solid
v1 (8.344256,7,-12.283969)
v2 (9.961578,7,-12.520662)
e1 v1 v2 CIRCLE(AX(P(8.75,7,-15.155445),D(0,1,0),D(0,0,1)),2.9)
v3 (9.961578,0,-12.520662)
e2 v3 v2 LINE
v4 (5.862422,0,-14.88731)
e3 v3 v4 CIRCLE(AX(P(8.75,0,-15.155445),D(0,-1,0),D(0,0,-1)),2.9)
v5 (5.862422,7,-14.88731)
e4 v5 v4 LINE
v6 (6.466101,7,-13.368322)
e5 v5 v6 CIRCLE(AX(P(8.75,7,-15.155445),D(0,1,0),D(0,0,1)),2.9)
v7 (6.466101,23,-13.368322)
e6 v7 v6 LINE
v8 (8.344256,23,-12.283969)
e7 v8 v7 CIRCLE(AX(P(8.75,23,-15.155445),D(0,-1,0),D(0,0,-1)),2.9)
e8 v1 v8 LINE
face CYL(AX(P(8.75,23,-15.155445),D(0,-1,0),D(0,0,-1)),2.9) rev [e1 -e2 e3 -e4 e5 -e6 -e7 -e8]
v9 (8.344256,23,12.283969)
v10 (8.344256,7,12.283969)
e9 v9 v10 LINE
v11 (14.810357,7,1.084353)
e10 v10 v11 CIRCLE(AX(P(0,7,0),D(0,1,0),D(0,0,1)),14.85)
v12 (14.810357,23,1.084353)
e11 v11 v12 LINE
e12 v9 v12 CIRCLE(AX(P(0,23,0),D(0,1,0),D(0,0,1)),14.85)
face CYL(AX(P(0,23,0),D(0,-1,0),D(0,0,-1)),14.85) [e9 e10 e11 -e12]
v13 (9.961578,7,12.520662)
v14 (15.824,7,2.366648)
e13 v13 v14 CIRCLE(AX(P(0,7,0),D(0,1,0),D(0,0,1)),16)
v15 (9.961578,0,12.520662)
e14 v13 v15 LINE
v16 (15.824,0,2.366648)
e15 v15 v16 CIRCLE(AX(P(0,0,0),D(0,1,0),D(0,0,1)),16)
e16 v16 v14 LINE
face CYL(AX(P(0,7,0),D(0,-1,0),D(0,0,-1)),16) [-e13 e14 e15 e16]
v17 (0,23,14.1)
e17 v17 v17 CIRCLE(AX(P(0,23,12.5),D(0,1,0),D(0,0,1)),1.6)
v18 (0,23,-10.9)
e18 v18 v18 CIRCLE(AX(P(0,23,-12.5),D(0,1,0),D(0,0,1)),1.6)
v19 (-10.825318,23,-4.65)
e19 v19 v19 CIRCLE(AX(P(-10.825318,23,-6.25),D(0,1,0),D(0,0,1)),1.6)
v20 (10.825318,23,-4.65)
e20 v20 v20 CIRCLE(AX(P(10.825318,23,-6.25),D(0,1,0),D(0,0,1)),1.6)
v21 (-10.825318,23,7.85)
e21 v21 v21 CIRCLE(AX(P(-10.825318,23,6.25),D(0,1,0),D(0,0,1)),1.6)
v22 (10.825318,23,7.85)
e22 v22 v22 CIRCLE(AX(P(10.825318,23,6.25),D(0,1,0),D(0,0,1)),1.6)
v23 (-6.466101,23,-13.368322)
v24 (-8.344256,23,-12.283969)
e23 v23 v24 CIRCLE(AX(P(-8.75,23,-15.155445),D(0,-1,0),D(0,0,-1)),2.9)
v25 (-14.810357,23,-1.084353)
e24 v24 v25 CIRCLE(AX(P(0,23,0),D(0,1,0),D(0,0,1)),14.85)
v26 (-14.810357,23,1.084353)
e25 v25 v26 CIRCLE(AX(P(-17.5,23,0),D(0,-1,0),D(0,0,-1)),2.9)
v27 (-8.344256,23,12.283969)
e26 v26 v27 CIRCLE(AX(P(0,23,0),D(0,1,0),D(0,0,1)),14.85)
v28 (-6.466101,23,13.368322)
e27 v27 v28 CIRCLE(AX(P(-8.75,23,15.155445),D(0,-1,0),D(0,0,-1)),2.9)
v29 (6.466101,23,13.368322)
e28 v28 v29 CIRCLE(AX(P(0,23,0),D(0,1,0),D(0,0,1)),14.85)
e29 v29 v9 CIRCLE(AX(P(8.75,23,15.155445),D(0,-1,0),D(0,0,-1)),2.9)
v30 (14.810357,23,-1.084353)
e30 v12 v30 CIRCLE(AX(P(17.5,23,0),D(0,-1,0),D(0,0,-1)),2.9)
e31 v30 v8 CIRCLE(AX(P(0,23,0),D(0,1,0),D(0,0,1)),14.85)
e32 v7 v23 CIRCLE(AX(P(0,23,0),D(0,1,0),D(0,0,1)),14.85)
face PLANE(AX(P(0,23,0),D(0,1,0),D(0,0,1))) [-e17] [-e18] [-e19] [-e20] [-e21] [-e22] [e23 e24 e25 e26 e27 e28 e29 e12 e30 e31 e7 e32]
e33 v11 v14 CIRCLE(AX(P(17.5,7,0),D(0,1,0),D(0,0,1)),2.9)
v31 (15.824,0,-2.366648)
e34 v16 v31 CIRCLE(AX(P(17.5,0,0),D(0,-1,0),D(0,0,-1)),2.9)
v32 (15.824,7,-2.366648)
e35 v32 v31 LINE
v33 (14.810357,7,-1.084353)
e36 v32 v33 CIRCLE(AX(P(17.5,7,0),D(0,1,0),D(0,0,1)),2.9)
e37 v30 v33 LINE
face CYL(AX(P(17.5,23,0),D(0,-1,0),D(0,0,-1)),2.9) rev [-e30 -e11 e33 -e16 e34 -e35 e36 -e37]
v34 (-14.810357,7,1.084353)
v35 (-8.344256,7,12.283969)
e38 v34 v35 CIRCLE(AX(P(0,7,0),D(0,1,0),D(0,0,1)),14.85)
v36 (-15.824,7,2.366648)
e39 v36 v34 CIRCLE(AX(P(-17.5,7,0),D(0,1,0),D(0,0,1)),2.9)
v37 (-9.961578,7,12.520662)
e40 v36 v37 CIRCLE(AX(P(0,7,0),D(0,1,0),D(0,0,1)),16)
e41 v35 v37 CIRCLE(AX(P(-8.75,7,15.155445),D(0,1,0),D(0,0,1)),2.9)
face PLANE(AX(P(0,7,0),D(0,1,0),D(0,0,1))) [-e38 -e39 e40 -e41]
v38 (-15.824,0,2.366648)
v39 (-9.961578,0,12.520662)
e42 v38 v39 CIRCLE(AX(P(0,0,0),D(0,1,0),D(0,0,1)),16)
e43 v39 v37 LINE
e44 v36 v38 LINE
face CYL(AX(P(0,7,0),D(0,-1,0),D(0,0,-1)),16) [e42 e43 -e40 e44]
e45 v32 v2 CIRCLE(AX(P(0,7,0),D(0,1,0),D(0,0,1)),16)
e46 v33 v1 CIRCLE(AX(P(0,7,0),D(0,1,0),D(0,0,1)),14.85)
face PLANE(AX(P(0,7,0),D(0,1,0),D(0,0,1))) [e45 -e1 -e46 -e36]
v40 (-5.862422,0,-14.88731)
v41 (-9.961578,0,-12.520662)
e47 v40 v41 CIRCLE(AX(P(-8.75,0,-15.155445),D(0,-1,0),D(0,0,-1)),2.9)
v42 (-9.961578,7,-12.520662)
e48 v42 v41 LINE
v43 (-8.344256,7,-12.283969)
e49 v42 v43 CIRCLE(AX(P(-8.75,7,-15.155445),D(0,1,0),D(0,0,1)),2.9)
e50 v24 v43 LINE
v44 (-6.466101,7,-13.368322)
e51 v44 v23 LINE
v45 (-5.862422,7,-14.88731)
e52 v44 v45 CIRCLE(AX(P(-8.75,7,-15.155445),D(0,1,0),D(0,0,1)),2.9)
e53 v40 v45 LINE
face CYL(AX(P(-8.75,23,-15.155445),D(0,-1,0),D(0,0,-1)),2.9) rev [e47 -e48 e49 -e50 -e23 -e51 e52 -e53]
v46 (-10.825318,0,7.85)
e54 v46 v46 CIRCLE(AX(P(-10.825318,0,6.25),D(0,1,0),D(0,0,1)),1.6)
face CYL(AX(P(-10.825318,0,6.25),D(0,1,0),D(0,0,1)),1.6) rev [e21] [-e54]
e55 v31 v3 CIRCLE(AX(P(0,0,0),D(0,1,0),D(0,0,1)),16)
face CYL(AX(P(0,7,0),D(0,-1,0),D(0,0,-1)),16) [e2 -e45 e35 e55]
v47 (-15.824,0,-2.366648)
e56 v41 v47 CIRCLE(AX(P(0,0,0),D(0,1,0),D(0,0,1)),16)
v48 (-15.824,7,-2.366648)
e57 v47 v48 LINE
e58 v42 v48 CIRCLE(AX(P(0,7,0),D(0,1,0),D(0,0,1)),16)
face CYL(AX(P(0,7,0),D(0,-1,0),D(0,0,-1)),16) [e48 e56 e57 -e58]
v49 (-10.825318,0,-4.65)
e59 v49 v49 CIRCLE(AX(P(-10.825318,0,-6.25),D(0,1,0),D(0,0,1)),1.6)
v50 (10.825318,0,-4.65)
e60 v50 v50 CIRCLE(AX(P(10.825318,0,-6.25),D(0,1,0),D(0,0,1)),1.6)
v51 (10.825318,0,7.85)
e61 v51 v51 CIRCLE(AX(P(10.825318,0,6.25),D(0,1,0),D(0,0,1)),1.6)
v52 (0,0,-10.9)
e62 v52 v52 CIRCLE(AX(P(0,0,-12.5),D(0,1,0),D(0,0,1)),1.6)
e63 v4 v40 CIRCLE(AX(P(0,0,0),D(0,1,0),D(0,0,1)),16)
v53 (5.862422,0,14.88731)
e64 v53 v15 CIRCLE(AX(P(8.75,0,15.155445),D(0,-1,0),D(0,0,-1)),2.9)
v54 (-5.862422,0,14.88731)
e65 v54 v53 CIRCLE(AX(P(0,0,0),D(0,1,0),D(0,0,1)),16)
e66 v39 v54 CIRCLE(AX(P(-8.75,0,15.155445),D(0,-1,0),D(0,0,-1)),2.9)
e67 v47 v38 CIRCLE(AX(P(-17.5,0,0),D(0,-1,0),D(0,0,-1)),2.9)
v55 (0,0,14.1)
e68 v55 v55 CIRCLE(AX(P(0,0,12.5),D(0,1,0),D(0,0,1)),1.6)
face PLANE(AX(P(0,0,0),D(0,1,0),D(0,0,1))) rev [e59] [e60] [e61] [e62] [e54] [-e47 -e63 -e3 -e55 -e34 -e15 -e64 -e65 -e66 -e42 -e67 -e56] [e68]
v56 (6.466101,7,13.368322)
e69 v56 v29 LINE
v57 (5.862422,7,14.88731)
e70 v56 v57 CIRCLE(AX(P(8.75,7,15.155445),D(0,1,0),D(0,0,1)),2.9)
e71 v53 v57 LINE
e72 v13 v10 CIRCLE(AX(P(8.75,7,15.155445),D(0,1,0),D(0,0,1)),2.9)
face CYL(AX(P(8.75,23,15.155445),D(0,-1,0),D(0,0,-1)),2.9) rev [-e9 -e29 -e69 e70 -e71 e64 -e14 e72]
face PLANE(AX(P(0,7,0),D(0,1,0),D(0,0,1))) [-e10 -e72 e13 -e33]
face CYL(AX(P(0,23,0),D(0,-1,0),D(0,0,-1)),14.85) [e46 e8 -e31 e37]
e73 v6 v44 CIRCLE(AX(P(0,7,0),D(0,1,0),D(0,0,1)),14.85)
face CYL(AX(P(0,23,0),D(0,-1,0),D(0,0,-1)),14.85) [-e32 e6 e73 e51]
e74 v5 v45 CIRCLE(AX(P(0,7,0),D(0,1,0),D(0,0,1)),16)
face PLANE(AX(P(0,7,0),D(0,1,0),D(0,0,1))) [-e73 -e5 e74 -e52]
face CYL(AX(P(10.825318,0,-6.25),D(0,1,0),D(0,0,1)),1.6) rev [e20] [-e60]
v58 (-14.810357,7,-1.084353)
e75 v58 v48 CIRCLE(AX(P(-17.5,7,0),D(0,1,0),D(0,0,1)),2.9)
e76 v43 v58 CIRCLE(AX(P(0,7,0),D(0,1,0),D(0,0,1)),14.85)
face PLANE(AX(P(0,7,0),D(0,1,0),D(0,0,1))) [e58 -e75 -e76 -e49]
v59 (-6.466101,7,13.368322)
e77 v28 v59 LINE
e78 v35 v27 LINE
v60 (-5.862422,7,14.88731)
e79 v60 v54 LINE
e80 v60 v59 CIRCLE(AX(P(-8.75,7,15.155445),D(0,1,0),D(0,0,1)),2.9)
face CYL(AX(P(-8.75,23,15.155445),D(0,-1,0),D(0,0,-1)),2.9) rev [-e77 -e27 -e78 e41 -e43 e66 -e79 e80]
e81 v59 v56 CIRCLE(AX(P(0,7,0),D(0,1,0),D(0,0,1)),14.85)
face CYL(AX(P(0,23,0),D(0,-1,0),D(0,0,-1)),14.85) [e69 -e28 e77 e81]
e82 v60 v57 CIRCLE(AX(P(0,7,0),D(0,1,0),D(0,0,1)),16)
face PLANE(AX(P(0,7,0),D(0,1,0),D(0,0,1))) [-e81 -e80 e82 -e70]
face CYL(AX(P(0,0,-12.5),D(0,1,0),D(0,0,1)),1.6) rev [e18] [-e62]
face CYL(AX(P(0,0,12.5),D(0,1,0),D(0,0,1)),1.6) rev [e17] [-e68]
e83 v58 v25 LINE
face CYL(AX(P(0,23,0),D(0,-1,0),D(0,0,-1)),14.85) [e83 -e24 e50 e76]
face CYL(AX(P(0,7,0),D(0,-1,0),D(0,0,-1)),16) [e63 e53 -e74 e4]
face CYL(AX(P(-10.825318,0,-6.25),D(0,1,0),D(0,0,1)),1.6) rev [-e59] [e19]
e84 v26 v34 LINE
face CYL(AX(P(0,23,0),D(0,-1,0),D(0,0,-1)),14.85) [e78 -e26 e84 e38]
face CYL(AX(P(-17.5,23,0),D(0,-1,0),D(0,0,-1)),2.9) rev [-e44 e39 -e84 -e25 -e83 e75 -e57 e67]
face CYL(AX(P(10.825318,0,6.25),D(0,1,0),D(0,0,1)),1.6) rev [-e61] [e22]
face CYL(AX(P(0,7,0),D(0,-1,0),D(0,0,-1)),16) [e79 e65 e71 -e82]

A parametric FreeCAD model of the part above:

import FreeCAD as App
import Part
import Sketcher

V = App.Vector
Q = App.Units.Quantity

doc = App.newDocument("Part")
body = doc.addObject("PartDesign::Body", "Body")

sketch1 = body.newObject("Sketcher::SketchObject", "Sketch")
sketch1.AttachmentSupport = (doc.getObject("XZ_Plane"), [""])
sketch1.MapMode = "FlatFace"
sketch1.addGeometry(Part.Circle(V(0, 0, 0), V(0, 0, 1), 16), False)
sketch1.addConstraint([
    Sketcher.Constraint("Coincident", 0, 3, -1, 1),
    Sketcher.Constraint("Diameter", 0, Q("32 mm")),
])
pad1 = body.newObject("PartDesign::Pad", "Pad")
pad1.Profile = sketch1
pad1.Length = 7
pad1.Reversed = True

sketch2 = body.newObject("Sketcher::SketchObject", "Sketch001")
sketch2.AttachmentSupport = (doc.getObject("XZ_Plane"), [""])
sketch2.MapMode = "FlatFace"
sketch2.AttachmentOffset = App.Placement(V(0, 0, -7), App.Rotation())
sketch2.addGeometry(Part.Circle(V(0, 0, 0), V(0, 0, 1), 15), False)
sketch2.addConstraint([
    Sketcher.Constraint("Coincident", 0, 3, -1, 1),
    Sketcher.Constraint("Diameter", 0, Q("29.7 mm")),
])
pad2 = body.newObject("PartDesign::Pad", "Pad001")
pad2.Profile = sketch2
pad2.Length = 16
pad2.Reversed = True

sketch3 = body.newObject("Sketcher::SketchObject", "Sketch002")
sketch3.AttachmentSupport = (doc.getObject("XZ_Plane"), [""])
sketch3.MapMode = "FlatFace"
sketch3.AttachmentOffset = App.Placement(V(0, 0, -23), App.Rotation())
sketch3.addGeometry([
    Part.Circle(V(0, -12.5, 0), V(0, 0, 1), 1.6),
    Part.Circle(V(10.8, -6.2, 0), V(0, 0, 1), 1.6),
    Part.Circle(V(10.8, 6.2, 0), V(0, 0, 1), 1.6),
    Part.Circle(V(0, 12.5, 0), V(0, 0, 1), 1.6),
    Part.Circle(V(-10.8, 6.2, 0), V(0, 0, 1), 1.6),
    Part.Circle(V(-10.8, -6.2, 0), V(0, 0, 1), 1.6),
], False)
sketch3.addConstraint([
    Sketcher.Constraint("Equal", 0, 1),
    Sketcher.Constraint("Equal", 1, 2),
    Sketcher.Constraint("Equal", 2, 3),
    Sketcher.Constraint("Equal", 3, 4),
    Sketcher.Constraint("Equal", 4, 5),
    Sketcher.Constraint("Symmetric", 0, 3, 3, 3, -1, 1),
    Sketcher.Constraint("Symmetric", 1, 3, 4, 3, -1, 1),
    Sketcher.Constraint("Symmetric", 2, 3, 5, 3, -1, 1),
    Sketcher.Constraint("Symmetric", 2, 3, 4, 3, -2),
    Sketcher.Constraint("PointOnObject", 0, 3, -2),
    Sketcher.Constraint("Diameter", 0, Q("3.2 mm")),
    Sketcher.Constraint("DistanceY", 0, 3, 3, 3, Q("25 mm")),
    Sketcher.Constraint("DistanceY", 1, 3, 2, 3, Q("12.5 mm")),
    Sketcher.Constraint("DistanceX", -1, 1, 1, 3, Q("10.825318 mm")),
])
pocket1 = body.newObject("PartDesign::Pocket", "Pocket")
pocket1.Profile = sketch3
pocket1.Type = "ThroughAll"
pocket1.Reversed = True

sketch4 = body.newObject("Sketcher::SketchObject", "Sketch003")
sketch4.AttachmentSupport = (doc.getObject("XZ_Plane"), [""])
sketch4.MapMode = "FlatFace"
sketch4.addGeometry([
    Part.Circle(V(8.8, 15.2, 0), V(0, 0, 1), 2.9),
    Part.Circle(V(17.5, 0, 0), V(0, 0, 1), 2.9),
    Part.Circle(V(8.8, -15.2, 0), V(0, 0, 1), 2.9),
    Part.Circle(V(-8.8, -15.2, 0), V(0, 0, 1), 2.9),
    Part.Circle(V(-17.5, 0, 0), V(0, 0, 1), 2.9),
    Part.Circle(V(-8.8, 15.2, 0), V(0, 0, 1), 2.9),
], False)
sketch4.addConstraint([
    Sketcher.Constraint("Equal", 0, 1),
    Sketcher.Constraint("Equal", 1, 2),
    Sketcher.Constraint("Equal", 2, 3),
    Sketcher.Constraint("Equal", 3, 4),
    Sketcher.Constraint("Equal", 4, 5),
    Sketcher.Constraint("Symmetric", 0, 3, 3, 3, -1, 1),
    Sketcher.Constraint("Symmetric", 1, 3, 4, 3, -1, 1),
    Sketcher.Constraint("Symmetric", 2, 3, 5, 3, -1, 1),
    Sketcher.Constraint("Symmetric", 2, 3, 3, 3, -2),
    Sketcher.Constraint("PointOnObject", 1, 3, -1),
    Sketcher.Constraint("Diameter", 0, Q("5.8 mm")),
    Sketcher.Constraint("DistanceX", 4, 3, 1, 3, Q("35 mm")),
    Sketcher.Constraint("DistanceX", 3, 3, 2, 3, Q("17.5 mm")),
    Sketcher.Constraint("DistanceY", 2, 3, 0, 3, Q("30.310889 mm")),
])
pocket2 = body.newObject("PartDesign::Pocket", "Pocket001")
pocket2.Profile = sketch4
pocket2.Type = "ThroughAll"

doc.recompute()
